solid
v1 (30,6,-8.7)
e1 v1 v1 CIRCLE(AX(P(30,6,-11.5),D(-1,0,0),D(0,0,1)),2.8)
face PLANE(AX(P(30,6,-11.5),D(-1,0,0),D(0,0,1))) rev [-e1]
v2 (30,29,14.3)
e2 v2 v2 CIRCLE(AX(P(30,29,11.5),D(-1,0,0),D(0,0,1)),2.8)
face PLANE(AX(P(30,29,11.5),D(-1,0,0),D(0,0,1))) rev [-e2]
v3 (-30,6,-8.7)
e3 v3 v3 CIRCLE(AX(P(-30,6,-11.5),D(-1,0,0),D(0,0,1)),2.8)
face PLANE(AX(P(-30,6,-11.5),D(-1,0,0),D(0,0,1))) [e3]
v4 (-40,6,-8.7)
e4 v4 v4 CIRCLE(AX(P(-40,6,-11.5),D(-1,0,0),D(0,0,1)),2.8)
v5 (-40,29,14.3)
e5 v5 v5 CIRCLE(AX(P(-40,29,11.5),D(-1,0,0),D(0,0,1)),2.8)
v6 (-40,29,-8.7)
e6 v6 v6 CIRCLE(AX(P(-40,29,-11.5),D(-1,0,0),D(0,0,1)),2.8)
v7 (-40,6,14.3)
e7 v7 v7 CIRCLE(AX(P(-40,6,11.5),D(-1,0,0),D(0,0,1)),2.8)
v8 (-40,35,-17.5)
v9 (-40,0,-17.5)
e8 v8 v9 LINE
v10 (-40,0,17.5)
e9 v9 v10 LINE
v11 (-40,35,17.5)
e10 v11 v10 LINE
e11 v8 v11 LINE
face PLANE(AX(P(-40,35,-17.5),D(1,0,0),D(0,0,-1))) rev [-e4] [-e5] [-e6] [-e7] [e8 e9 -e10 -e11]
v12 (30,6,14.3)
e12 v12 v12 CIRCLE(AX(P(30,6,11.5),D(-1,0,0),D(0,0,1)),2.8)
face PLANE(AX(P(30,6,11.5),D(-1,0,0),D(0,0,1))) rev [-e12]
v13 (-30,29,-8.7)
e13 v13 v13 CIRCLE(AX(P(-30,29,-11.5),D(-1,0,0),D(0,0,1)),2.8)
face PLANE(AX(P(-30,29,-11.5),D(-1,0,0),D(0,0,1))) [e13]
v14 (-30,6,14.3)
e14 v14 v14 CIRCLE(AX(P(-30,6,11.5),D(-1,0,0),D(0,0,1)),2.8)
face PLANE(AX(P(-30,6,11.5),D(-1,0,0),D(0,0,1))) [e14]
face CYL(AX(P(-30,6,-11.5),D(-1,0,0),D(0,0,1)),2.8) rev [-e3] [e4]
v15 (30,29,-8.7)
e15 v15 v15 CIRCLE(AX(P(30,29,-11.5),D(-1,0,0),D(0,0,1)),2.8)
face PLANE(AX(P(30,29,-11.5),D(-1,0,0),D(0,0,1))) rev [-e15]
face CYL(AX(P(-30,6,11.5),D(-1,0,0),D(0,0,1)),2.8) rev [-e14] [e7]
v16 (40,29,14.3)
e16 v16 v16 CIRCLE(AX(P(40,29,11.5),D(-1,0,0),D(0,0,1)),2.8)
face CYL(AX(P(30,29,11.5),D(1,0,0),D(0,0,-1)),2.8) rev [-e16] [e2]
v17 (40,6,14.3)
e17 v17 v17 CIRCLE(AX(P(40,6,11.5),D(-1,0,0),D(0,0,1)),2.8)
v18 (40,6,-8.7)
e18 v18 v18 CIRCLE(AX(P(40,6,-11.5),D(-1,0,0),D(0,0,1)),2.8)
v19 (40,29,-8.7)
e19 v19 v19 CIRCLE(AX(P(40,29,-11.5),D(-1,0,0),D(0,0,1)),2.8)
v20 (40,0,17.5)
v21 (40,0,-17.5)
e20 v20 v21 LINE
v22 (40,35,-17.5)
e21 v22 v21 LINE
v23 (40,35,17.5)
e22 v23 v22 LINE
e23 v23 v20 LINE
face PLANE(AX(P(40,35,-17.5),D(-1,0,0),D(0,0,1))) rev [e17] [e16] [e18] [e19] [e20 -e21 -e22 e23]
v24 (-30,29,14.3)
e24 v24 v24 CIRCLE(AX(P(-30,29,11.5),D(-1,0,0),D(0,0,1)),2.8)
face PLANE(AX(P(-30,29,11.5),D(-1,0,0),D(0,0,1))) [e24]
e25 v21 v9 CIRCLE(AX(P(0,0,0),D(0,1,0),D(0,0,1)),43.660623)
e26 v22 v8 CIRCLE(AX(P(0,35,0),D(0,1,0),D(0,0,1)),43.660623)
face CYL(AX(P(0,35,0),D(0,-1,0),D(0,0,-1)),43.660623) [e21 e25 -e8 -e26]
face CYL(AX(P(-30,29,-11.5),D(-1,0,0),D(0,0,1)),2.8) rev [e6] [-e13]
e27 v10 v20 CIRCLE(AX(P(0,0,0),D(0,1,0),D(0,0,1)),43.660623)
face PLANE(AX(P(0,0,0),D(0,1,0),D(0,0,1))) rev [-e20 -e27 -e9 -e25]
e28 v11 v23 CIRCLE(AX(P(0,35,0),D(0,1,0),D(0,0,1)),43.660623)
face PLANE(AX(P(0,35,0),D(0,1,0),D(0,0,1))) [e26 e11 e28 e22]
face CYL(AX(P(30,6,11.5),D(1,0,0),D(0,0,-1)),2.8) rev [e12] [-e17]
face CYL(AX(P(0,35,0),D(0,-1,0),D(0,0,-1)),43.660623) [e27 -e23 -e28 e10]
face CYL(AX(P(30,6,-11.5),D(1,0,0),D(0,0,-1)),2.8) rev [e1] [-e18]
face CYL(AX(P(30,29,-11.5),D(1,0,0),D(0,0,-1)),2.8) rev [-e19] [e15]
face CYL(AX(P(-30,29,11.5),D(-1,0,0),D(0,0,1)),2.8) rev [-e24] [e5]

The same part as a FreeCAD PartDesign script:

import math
import FreeCAD as App
import Part
import Sketcher

V = App.Vector

doc = App.newDocument("Part")
body = doc.addObject("PartDesign::Body", "Body")

sketch1 = doc.addObject("Sketcher::SketchObject", "Sketch")
body.addObject(sketch1)
sketch1.AttachmentSupport = (doc.XZ_Plane, [""])
sketch1.MapMode = "FlatFace"
sketch1.addGeometry([
    Part.LineSegment(V(-40, -17.5, 0), V(-40, 17.5, 0)),
    Part.ArcOfCircle(Part.Circle(V(0, 0, 0), V(0, 0, 1), 43.660623), math.radians(23.629378), math.radians(156.370622)),
    Part.LineSegment(V(40, 17.5, 0), V(40, -17.5, 0)),
    Part.ArcOfCircle(Part.Circle(V(0, 0, 0), V(0, 0, 1), 43.660623), math.radians(-156.370622), math.radians(-23.629378)),
], False)
sketch1.addConstraint([
    Sketcher.Constraint("Coincident", 0, 2, 1, 2),
    Sketcher.Constraint("Coincident", 1, 1, 2, 1),
    Sketcher.Constraint("Coincident", 2, 2, 3, 2),
    Sketcher.Constraint("Coincident", 3, 1, 0, 1),
    Sketcher.Constraint("Vertical", 0),
    Sketcher.Constraint("Vertical", 2),
    Sketcher.Constraint("Coincident", 1, 3, -1, 1),
    Sketcher.Constraint("Coincident", 3, 3, -1, 1),
    Sketcher.Constraint("Equal", 1, 3),
    Sketcher.Constraint("Horizontal", 0, 2, 1, 1),
    Sketcher.Constraint("DistanceY", 0, 1, 0, 2, 35.0),
    Sketcher.Constraint("DistanceX", 0, 2, -1, 1, 40.0),
])
pad1 = doc.addObject("PartDesign::Pad", "Pad")
body.addObject(pad1)
pad1.Profile = sketch1
pad1.Length = 35
pad1.Reversed = True

sketch2 = doc.addObject("Sketcher::SketchObject", "Sketch001")
body.addObject(sketch2)
sketch2.AttachmentSupport = (doc.YZ_Plane, [""])
sketch2.MapMode = "FlatFace"
sketch2.AttachmentOffset = App.Placement(V(0, 0, -40), App.Rotation())
sketch2.addGeometry([
    Part.Circle(V(29, -11.5, 0), V(0, 0, 1), 2.8),
    Part.Circle(V(29, 11.5, 0), V(0, 0, 1), 2.8),
    Part.Circle(V(6, -11.5, 0), V(0, 0, 1), 2.8),
    Part.Circle(V(6, 11.5, 0), V(0, 0, 1), 2.8),
], False)
sketch2.addConstraint([
    Sketcher.Constraint("Equal", 0, 1),
    Sketcher.Constraint("Equal", 1, 2),
    Sketcher.Constraint("Equal", 2, 3),
    Sketcher.Constraint("Symmetric", 0, 3, 1, 3, -1),
    Sketcher.Constraint("Symmetric", 2, 3, 3, 3, -1),
    Sketcher.Constraint("Horizontal", 0, 3, 2, 3),
    Sketcher.Constraint("Diameter", 0, 5.6),
    Sketcher.Constraint("DistanceX", -1, 1, 0, 3, 29.0),
    Sketcher.Constraint("DistanceX", -1, 1, 2, 3, 6.0),
    Sketcher.Constraint("DistanceY", 0, 3, 1, 3, 23.0),
])
pocket1 = doc.addObject("PartDesign::Pocket", "Pocket")
body.addObject(pocket1)
pocket1.Profile = sketch2
pocket1.Length = 10
pocket1.Reversed = True

sketch3 = doc.addObject("Sketcher::SketchObject", "Sketch002")
body.addObject(sketch3)
sketch3.AttachmentSupport = (doc.YZ_Plane, [""])
sketch3.MapMode = "FlatFace"
sketch3.AttachmentOffset = App.Placement(V(0, 0, 40), App.Rotation())
sketch3.addGeometry([
    Part.Circle(V(29, -11.5, 0), V(0, 0, 1), 2.8),
    Part.Circle(V(29, 11.5, 0), V(0, 0, 1), 2.8),
    Part.Circle(V(6, -11.5, 0), V(0, 0, 1), 2.8),
    Part.Circle(V(6, 11.5, 0), V(0, 0, 1), 2.8),
], False)
sketch3.addConstraint([
    Sketcher.Constraint("Equal", 0, 1),
    Sketcher.Constraint("Equal", 1, 2),
    Sketcher.Constraint("Equal", 2, 3),
    Sketcher.Constraint("Symmetric", 0, 3, 1, 3, -1),
    Sketcher.Constraint("Symmetric", 2, 3, 3, 3, -1),
    Sketcher.Constraint("Horizontal", 0, 3, 2, 3),
    Sketcher.Constraint("Diameter", 0, 5.6),
    Sketcher.Constraint("DistanceX", -1, 1, 0, 3, 29.0),
    Sketcher.Constraint("DistanceX", -1, 1, 2, 3, 6.0),
    Sketcher.Constraint("DistanceY", 0, 3, 1, 3, 23.0),
])
pocket2 = doc.addObject("PartDesign::Pocket", "Pocket001")
body.addObject(pocket2)
pocket2.Profile = sketch3
pocket2.Length = 10

doc.recompute()
